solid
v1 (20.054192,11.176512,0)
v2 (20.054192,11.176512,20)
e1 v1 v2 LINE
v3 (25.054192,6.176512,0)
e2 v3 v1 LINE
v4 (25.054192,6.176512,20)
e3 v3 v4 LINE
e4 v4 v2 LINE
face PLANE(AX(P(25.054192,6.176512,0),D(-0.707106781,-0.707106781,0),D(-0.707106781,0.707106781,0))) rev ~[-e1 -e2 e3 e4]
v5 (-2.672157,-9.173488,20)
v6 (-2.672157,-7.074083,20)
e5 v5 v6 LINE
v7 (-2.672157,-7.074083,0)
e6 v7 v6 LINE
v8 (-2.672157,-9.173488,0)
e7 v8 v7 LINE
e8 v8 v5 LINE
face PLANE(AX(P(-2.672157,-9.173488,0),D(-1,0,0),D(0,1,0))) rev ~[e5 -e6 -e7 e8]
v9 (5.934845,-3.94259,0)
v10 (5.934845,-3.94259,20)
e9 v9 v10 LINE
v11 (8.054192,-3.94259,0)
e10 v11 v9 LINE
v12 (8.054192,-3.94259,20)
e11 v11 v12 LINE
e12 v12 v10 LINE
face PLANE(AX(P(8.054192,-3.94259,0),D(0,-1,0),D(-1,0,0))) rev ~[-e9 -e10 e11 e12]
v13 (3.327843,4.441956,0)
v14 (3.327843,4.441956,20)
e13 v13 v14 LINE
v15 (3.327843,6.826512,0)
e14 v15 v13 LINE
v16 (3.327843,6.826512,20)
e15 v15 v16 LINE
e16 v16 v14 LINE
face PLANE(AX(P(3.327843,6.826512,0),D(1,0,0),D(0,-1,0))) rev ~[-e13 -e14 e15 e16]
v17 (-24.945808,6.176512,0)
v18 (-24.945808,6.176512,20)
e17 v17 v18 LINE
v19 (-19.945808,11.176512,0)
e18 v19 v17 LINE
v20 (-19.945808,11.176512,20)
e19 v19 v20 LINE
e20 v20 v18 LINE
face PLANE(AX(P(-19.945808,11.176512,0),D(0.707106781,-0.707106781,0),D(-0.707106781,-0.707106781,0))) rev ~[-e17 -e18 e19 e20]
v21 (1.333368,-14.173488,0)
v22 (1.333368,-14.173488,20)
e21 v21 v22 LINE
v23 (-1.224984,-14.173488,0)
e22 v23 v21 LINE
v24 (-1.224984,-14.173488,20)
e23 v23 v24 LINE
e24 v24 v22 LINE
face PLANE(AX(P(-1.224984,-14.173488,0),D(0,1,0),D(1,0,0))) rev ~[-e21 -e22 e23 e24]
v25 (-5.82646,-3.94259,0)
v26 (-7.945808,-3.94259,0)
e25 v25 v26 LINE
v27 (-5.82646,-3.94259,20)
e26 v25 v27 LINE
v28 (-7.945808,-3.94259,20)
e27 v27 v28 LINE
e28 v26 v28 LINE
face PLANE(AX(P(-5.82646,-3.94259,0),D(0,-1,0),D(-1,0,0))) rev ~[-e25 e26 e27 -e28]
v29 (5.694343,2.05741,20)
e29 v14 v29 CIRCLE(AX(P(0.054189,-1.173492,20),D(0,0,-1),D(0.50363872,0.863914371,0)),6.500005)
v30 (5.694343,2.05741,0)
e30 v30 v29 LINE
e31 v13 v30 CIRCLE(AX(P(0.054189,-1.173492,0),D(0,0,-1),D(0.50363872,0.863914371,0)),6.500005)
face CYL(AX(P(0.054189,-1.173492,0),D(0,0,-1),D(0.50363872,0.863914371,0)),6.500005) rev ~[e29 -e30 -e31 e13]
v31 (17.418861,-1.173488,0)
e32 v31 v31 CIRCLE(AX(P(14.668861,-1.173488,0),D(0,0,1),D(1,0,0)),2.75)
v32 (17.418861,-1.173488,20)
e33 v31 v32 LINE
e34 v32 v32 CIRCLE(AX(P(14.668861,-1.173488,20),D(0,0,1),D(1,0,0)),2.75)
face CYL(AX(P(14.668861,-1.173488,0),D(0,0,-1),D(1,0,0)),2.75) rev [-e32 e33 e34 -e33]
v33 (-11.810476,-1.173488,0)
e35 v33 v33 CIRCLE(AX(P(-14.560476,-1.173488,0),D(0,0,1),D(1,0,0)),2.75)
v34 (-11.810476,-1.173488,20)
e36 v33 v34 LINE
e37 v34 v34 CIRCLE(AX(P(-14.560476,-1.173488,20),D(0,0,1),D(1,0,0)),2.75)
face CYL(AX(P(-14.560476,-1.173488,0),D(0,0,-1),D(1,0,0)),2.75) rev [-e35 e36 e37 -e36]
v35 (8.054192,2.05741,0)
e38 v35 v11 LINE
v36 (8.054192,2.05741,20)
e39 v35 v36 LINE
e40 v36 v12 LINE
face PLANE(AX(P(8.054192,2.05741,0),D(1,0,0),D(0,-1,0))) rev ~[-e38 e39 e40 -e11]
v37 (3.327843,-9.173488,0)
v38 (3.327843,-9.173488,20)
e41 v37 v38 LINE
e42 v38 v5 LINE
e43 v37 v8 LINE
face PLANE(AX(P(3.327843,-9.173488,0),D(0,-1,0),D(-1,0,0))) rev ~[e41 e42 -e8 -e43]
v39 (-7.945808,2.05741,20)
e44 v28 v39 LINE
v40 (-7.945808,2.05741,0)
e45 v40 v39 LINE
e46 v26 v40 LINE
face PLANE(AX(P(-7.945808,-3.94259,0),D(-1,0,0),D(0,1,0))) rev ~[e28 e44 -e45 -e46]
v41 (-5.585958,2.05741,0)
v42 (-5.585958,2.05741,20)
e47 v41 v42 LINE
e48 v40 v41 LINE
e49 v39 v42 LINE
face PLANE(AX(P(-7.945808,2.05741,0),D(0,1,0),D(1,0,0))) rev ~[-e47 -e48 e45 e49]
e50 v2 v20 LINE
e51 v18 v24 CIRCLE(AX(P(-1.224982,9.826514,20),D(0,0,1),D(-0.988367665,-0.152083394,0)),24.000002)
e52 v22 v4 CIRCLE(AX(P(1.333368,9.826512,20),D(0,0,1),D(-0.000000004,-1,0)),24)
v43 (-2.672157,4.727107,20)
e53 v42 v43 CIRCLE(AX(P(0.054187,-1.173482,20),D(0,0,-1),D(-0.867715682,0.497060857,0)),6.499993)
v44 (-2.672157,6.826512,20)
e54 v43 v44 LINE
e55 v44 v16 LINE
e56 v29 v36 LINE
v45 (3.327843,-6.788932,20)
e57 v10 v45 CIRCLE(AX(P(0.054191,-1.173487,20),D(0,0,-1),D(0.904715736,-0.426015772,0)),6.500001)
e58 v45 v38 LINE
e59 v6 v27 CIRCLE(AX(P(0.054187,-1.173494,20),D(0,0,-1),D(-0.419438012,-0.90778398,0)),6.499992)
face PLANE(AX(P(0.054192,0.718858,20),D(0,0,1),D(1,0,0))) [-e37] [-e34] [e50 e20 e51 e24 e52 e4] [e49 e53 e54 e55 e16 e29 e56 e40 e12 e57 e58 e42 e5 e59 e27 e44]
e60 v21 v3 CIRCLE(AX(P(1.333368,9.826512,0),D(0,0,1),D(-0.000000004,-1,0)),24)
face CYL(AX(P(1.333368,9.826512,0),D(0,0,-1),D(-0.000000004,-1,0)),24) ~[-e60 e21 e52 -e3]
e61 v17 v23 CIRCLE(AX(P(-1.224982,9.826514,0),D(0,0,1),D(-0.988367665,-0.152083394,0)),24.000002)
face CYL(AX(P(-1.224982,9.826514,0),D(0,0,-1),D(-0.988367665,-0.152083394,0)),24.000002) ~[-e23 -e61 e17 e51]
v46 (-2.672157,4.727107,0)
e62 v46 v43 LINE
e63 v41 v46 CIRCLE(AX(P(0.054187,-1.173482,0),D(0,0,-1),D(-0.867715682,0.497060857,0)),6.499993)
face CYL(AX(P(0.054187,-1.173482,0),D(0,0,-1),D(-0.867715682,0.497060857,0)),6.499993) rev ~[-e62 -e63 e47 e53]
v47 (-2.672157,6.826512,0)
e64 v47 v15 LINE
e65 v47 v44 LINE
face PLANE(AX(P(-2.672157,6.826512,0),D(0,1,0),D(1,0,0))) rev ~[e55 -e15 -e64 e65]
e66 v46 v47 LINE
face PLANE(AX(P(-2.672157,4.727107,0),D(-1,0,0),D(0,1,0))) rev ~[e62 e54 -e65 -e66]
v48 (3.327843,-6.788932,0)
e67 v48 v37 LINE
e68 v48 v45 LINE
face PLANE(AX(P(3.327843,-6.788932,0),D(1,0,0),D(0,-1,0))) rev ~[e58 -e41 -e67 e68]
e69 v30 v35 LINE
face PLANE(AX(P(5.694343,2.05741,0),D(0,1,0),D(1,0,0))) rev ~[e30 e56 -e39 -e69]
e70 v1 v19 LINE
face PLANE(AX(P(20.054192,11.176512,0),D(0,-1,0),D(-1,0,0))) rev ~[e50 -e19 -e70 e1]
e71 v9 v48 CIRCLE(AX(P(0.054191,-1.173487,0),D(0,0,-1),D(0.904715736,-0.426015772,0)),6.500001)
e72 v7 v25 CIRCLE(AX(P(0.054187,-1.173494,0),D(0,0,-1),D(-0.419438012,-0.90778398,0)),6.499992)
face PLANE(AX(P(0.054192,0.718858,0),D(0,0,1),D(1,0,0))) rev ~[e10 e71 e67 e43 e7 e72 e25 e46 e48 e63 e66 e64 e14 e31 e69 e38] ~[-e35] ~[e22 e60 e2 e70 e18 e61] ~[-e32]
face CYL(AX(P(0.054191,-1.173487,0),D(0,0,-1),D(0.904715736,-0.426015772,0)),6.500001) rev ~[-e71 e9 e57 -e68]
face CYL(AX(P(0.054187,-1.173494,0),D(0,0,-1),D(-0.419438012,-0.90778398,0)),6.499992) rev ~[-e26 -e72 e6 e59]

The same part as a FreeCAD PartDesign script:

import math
import FreeCAD as App
import Part
import Sketcher
from FreeCAD import Vector

doc = App.newDocument("Part")
body = doc.addObject("PartDesign::Body", "Body")

# Sketch on XY plane
sketch1 = body.newObject("Sketcher::SketchObject", "Sketch")
sketch1.AttachmentSupport = (doc.getObject("XY_Plane"), [""])
sketch1.MapMode = "FlatFace"
sketch1.addGeometry([
    Part.LineSegment(Vector(25.1, 6.2, 0), Vector(20.1, 11.2, 0)),  # 0
    Part.LineSegment(Vector(20.1, 11.2, 0), Vector(-19.9, 11.2, 0)),  # 1
    Part.LineSegment(Vector(-19.9, 11.2, 0), Vector(-24.9, 6.2, 0)),  # 2
    Part.ArcOfCircle(Part.Circle(Vector(-1.2, 9.8, 0), Vector(0, 0, 1), 24), math.radians(-171), math.radians(-90)),  # 3
    Part.LineSegment(Vector(-1.2, -14.2, 0), Vector(1.3, -14.2, 0)),  # 4
    Part.ArcOfCircle(Part.Circle(Vector(1.3, 9.8, 0), Vector(0, 0, 1), 24), math.radians(-90), math.radians(-9)),  # 5
    Part.Circle(Vector(-14.6, -1.2, 0), Vector(0, 0, 1), 2.8),  # 6
    Part.ArcOfCircle(Part.Circle(Vector(0.1, -1.2, 0), Vector(0, 0, 1), 6.5), math.radians(30), math.radians(60)),  # 7
    Part.LineSegment(Vector(5.7, 2.1, 0), Vector(8.1, 2.1, 0)),  # 8
    Part.LineSegment(Vector(8.1, 2.1, 0), Vector(8.1, -3.9, 0)),  # 9
    Part.LineSegment(Vector(8.1, -3.9, 0), Vector(5.9, -3.9, 0)),  # 10
    Part.ArcOfCircle(Part.Circle(Vector(0.1, -1.2, 0), Vector(0, 0, 1), 6.5), math.radians(-60), math.radians(-25)),  # 11
    Part.LineSegment(Vector(3.3, -6.8, 0), Vector(3.3, -9.2, 0)),  # 12
    Part.LineSegment(Vector(3.3, -9.2, 0), Vector(-2.7, -9.2, 0)),  # 13
    Part.LineSegment(Vector(-2.7, -9.2, 0), Vector(-2.7, -7.1, 0)),  # 14
    Part.ArcOfCircle(Part.Circle(Vector(0.1, -1.2, 0), Vector(0, 0, 1), 6.5), math.radians(-155), math.radians(-115)),  # 15
    Part.LineSegment(Vector(-5.8, -3.9, 0), Vector(-7.9, -3.9, 0)),  # 16
    Part.LineSegment(Vector(-7.9, -3.9, 0), Vector(-7.9, 2.1, 0)),  # 17
    Part.LineSegment(Vector(-7.9, 2.1, 0), Vector(-5.6, 2.1, 0)),  # 18
    Part.ArcOfCircle(Part.Circle(Vector(0.1, -1.2, 0), Vector(0, 0, 1), 6.5), math.radians(115), math.radians(150)),  # 19
    Part.LineSegment(Vector(-2.7, 4.7, 0), Vector(-2.7, 6.8, 0)),  # 20
    Part.LineSegment(Vector(-2.7, 6.8, 0), Vector(3.3, 6.8, 0)),  # 21
    Part.LineSegment(Vector(3.3, 6.8, 0), Vector(3.3, 4.4, 0)),  # 22
    Part.Circle(Vector(14.7, -1.2, 0), Vector(0, 0, 1), 2.8),  # 23
], False)
sketch1.addConstraint([
    Sketcher.Constraint("Coincident", 0, 2, 1, 1),
    Sketcher.Constraint("Coincident", 1, 2, 2, 1),
    Sketcher.Constraint("Coincident", 2, 2, 3, 1),
    Sketcher.Constraint("Tangent", 3, 2, 4, 1),
    Sketcher.Constraint("Tangent", 4, 2, 5, 1),
    Sketcher.Constraint("Coincident", 5, 2, 0, 1),
    Sketcher.Constraint("Coincident", 7, 1, 8, 1),
    Sketcher.Constraint("Coincident", 8, 2, 9, 1),
    Sketcher.Constraint("Coincident", 9, 2, 10, 1),
    Sketcher.Constraint("Coincident", 10, 2, 11, 2),
    Sketcher.Constraint("Coincident", 11, 1, 12, 1),
    Sketcher.Constraint("Coincident", 12, 2, 13, 1),
    Sketcher.Constraint("Coincident", 13, 2, 14, 1),
    Sketcher.Constraint("Coincident", 14, 2, 15, 2),
    Sketcher.Constraint("Coincident", 15, 1, 16, 1),
    Sketcher.Constraint("Coincident", 16, 2, 17, 1),
    Sketcher.Constraint("Coincident", 17, 2, 18, 1),
    Sketcher.Constraint("Coincident", 18, 2, 19, 2),
    Sketcher.Constraint("Coincident", 19, 1, 20, 1),
    Sketcher.Constraint("Coincident", 20, 2, 21, 1),
    Sketcher.Constraint("Coincident", 21, 2, 22, 1),
    Sketcher.Constraint("Coincident", 22, 2, 7, 2),
    Sketcher.Constraint("Horizontal", 1),
    Sketcher.Constraint("Horizontal", 4),
    Sketcher.Constraint("Horizontal", 8),
    Sketcher.Constraint("Vertical", 9),
    Sketcher.Constraint("Horizontal", 10),
    Sketcher.Constraint("Vertical", 12),
    Sketcher.Constraint("Horizontal", 13),
    Sketcher.Constraint("Vertical", 14),
    Sketcher.Constraint("Horizontal", 16),
    Sketcher.Constraint("Vertical", 17),
    Sketcher.Constraint("Horizontal", 18),
    Sketcher.Constraint("Vertical", 20),
    Sketcher.Constraint("Horizontal", 21),
    Sketcher.Constraint("Vertical", 22),
    Sketcher.Constraint("Coincident", 11, 3, 7, 3),
    Sketcher.Constraint("Coincident", 15, 3, 7, 3),
    Sketcher.Constraint("Coincident", 19, 3, 11, 3),
    Sketcher.Constraint("Equal", 15, 19),
    Sketcher.Constraint("Equal", 6, 23),
    Sketcher.Constraint("Perpendicular", 0, 2),
    Sketcher.Constraint("Horizontal", 6, 3, 11, 3),
    Sketcher.Constraint("Horizontal", 11, 3, 23, 3),
    Sketcher.Constraint("Horizontal", 2, 2, 5, 2),
    Sketcher.Constraint("Horizontal", 10, 2, 15, 1),
    Sketcher.Constraint("Horizontal", 8, 2, 17, 2),
    Sketcher.Constraint("Vertical", 14, 2, 19, 1),
    Sketcher.Constraint("Vertical", 12, 2, 21, 2),
    Sketcher.Constraint("Equal", 10, 16),
    Sketcher.Constraint("Equal", 8, 18),
    Sketcher.Constraint("Equal", 21, 9),
    Sketcher.Constraint("Equal", 14, 20),
    Sketcher.Constraint("Equal", 12, 22),
    Sketcher.Constraint("Equal", 0, 2),
    Sketcher.Constraint("Radius", 3, 24.000002),
    Sketcher.Constraint("Radius", 5, 24.0),
    Sketcher.Constraint("Diameter", 6, 5.5),
    Sketcher.Constraint("Radius", 11, 6.500001),
    Sketcher.Constraint("DistanceX", 1, 2, 1, 1, 40.0),
    Sketcher.Constraint("DistanceX", 13, 2, 13, 1, 6.0),
    Sketcher.Constraint("DistanceY", 6, 3, 3, 3, 11.000002),
    Sketcher.Constraint("DistanceX", 11, 3, 0, 2, 20.000001),
    Sketcher.Constraint("DistanceX", 2, 2, 1, 2, 5.0),
    Sketcher.Constraint("DistanceX", 11, 3, 8, 2, 8.000001),
    Sketcher.Constraint("DistanceY", 4, 2, 12, 2, 5.0),
    Sketcher.Constraint("DistanceY", 23, 3, 0, 2, 12.35),
    Sketcher.Constraint("DistanceX", 11, 1, 10, 2, 2.607002),
    Sketcher.Constraint("DistanceX", 8, 1, 8, 2, 2.359849),
    Sketcher.Constraint("DistanceX", -1, 1, 5, 3, 1.333368),
    Sketcher.Constraint("DistanceY", -1, 1, 5, 3, 9.826512),
    Sketcher.Constraint("DistanceX", -1, 1, 23, 3, 14.668861),
    Sketcher.Constraint("DistanceX", 6, 3, -1, 1, 14.560476),
])
pad1 = body.newObject("PartDesign::Pad", "Pad")
pad1.Profile = sketch1
pad1.Length = 20

doc.recompute()
